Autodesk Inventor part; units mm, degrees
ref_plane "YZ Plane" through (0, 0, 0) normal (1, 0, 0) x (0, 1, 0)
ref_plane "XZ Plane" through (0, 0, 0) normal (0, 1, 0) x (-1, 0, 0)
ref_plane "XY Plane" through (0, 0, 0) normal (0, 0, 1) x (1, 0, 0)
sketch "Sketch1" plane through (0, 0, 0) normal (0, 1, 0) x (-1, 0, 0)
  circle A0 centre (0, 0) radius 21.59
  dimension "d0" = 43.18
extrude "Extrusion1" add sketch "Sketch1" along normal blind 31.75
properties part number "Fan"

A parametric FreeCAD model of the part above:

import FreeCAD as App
import Part
import Sketcher
from FreeCAD import Vector
Q = App.Units.Quantity

doc = App.newDocument("Part")
params = doc.addObject("Spreadsheet::Sheet", "Params")
for row, (alias, value) in enumerate([
    ("sketch1_diameter", "1.7 in"),
    ("pad1_length", "1.25 in"),
], start=1):
    params.set(f"A{row}", alias)
    params.set(f"B{row}", "=" + value)
    params.setAlias(f"B{row}", alias)

body = doc.addObject("PartDesign::Body", "Body")

sketch1 = body.newObject("Sketcher::SketchObject", "Sketch")
sketch1.AttachmentSupport = (doc.getObject("XZ_Plane"), [""])
sketch1.MapMode = "FlatFace"
sketch1.addGeometry(Part.Circle(Vector(0, 0, 0), Vector(0, 0, 1), 22), False)
sketch1.addConstraint(Sketcher.Constraint("Coincident", 0, 3, -1, 1))
sketch1.addConstraint(Sketcher.Constraint("Diameter", 0, Q("1.7 in")))
sketch1.setExpression("Constraints[1]", "Params.sketch1_diameter")
pad1 = body.newObject("PartDesign::Pad", "Pad")
pad1.Profile = sketch1
pad1.setExpression("Length", "Params.pad1_length")
pad1.Reversed = True

doc.recompute()
